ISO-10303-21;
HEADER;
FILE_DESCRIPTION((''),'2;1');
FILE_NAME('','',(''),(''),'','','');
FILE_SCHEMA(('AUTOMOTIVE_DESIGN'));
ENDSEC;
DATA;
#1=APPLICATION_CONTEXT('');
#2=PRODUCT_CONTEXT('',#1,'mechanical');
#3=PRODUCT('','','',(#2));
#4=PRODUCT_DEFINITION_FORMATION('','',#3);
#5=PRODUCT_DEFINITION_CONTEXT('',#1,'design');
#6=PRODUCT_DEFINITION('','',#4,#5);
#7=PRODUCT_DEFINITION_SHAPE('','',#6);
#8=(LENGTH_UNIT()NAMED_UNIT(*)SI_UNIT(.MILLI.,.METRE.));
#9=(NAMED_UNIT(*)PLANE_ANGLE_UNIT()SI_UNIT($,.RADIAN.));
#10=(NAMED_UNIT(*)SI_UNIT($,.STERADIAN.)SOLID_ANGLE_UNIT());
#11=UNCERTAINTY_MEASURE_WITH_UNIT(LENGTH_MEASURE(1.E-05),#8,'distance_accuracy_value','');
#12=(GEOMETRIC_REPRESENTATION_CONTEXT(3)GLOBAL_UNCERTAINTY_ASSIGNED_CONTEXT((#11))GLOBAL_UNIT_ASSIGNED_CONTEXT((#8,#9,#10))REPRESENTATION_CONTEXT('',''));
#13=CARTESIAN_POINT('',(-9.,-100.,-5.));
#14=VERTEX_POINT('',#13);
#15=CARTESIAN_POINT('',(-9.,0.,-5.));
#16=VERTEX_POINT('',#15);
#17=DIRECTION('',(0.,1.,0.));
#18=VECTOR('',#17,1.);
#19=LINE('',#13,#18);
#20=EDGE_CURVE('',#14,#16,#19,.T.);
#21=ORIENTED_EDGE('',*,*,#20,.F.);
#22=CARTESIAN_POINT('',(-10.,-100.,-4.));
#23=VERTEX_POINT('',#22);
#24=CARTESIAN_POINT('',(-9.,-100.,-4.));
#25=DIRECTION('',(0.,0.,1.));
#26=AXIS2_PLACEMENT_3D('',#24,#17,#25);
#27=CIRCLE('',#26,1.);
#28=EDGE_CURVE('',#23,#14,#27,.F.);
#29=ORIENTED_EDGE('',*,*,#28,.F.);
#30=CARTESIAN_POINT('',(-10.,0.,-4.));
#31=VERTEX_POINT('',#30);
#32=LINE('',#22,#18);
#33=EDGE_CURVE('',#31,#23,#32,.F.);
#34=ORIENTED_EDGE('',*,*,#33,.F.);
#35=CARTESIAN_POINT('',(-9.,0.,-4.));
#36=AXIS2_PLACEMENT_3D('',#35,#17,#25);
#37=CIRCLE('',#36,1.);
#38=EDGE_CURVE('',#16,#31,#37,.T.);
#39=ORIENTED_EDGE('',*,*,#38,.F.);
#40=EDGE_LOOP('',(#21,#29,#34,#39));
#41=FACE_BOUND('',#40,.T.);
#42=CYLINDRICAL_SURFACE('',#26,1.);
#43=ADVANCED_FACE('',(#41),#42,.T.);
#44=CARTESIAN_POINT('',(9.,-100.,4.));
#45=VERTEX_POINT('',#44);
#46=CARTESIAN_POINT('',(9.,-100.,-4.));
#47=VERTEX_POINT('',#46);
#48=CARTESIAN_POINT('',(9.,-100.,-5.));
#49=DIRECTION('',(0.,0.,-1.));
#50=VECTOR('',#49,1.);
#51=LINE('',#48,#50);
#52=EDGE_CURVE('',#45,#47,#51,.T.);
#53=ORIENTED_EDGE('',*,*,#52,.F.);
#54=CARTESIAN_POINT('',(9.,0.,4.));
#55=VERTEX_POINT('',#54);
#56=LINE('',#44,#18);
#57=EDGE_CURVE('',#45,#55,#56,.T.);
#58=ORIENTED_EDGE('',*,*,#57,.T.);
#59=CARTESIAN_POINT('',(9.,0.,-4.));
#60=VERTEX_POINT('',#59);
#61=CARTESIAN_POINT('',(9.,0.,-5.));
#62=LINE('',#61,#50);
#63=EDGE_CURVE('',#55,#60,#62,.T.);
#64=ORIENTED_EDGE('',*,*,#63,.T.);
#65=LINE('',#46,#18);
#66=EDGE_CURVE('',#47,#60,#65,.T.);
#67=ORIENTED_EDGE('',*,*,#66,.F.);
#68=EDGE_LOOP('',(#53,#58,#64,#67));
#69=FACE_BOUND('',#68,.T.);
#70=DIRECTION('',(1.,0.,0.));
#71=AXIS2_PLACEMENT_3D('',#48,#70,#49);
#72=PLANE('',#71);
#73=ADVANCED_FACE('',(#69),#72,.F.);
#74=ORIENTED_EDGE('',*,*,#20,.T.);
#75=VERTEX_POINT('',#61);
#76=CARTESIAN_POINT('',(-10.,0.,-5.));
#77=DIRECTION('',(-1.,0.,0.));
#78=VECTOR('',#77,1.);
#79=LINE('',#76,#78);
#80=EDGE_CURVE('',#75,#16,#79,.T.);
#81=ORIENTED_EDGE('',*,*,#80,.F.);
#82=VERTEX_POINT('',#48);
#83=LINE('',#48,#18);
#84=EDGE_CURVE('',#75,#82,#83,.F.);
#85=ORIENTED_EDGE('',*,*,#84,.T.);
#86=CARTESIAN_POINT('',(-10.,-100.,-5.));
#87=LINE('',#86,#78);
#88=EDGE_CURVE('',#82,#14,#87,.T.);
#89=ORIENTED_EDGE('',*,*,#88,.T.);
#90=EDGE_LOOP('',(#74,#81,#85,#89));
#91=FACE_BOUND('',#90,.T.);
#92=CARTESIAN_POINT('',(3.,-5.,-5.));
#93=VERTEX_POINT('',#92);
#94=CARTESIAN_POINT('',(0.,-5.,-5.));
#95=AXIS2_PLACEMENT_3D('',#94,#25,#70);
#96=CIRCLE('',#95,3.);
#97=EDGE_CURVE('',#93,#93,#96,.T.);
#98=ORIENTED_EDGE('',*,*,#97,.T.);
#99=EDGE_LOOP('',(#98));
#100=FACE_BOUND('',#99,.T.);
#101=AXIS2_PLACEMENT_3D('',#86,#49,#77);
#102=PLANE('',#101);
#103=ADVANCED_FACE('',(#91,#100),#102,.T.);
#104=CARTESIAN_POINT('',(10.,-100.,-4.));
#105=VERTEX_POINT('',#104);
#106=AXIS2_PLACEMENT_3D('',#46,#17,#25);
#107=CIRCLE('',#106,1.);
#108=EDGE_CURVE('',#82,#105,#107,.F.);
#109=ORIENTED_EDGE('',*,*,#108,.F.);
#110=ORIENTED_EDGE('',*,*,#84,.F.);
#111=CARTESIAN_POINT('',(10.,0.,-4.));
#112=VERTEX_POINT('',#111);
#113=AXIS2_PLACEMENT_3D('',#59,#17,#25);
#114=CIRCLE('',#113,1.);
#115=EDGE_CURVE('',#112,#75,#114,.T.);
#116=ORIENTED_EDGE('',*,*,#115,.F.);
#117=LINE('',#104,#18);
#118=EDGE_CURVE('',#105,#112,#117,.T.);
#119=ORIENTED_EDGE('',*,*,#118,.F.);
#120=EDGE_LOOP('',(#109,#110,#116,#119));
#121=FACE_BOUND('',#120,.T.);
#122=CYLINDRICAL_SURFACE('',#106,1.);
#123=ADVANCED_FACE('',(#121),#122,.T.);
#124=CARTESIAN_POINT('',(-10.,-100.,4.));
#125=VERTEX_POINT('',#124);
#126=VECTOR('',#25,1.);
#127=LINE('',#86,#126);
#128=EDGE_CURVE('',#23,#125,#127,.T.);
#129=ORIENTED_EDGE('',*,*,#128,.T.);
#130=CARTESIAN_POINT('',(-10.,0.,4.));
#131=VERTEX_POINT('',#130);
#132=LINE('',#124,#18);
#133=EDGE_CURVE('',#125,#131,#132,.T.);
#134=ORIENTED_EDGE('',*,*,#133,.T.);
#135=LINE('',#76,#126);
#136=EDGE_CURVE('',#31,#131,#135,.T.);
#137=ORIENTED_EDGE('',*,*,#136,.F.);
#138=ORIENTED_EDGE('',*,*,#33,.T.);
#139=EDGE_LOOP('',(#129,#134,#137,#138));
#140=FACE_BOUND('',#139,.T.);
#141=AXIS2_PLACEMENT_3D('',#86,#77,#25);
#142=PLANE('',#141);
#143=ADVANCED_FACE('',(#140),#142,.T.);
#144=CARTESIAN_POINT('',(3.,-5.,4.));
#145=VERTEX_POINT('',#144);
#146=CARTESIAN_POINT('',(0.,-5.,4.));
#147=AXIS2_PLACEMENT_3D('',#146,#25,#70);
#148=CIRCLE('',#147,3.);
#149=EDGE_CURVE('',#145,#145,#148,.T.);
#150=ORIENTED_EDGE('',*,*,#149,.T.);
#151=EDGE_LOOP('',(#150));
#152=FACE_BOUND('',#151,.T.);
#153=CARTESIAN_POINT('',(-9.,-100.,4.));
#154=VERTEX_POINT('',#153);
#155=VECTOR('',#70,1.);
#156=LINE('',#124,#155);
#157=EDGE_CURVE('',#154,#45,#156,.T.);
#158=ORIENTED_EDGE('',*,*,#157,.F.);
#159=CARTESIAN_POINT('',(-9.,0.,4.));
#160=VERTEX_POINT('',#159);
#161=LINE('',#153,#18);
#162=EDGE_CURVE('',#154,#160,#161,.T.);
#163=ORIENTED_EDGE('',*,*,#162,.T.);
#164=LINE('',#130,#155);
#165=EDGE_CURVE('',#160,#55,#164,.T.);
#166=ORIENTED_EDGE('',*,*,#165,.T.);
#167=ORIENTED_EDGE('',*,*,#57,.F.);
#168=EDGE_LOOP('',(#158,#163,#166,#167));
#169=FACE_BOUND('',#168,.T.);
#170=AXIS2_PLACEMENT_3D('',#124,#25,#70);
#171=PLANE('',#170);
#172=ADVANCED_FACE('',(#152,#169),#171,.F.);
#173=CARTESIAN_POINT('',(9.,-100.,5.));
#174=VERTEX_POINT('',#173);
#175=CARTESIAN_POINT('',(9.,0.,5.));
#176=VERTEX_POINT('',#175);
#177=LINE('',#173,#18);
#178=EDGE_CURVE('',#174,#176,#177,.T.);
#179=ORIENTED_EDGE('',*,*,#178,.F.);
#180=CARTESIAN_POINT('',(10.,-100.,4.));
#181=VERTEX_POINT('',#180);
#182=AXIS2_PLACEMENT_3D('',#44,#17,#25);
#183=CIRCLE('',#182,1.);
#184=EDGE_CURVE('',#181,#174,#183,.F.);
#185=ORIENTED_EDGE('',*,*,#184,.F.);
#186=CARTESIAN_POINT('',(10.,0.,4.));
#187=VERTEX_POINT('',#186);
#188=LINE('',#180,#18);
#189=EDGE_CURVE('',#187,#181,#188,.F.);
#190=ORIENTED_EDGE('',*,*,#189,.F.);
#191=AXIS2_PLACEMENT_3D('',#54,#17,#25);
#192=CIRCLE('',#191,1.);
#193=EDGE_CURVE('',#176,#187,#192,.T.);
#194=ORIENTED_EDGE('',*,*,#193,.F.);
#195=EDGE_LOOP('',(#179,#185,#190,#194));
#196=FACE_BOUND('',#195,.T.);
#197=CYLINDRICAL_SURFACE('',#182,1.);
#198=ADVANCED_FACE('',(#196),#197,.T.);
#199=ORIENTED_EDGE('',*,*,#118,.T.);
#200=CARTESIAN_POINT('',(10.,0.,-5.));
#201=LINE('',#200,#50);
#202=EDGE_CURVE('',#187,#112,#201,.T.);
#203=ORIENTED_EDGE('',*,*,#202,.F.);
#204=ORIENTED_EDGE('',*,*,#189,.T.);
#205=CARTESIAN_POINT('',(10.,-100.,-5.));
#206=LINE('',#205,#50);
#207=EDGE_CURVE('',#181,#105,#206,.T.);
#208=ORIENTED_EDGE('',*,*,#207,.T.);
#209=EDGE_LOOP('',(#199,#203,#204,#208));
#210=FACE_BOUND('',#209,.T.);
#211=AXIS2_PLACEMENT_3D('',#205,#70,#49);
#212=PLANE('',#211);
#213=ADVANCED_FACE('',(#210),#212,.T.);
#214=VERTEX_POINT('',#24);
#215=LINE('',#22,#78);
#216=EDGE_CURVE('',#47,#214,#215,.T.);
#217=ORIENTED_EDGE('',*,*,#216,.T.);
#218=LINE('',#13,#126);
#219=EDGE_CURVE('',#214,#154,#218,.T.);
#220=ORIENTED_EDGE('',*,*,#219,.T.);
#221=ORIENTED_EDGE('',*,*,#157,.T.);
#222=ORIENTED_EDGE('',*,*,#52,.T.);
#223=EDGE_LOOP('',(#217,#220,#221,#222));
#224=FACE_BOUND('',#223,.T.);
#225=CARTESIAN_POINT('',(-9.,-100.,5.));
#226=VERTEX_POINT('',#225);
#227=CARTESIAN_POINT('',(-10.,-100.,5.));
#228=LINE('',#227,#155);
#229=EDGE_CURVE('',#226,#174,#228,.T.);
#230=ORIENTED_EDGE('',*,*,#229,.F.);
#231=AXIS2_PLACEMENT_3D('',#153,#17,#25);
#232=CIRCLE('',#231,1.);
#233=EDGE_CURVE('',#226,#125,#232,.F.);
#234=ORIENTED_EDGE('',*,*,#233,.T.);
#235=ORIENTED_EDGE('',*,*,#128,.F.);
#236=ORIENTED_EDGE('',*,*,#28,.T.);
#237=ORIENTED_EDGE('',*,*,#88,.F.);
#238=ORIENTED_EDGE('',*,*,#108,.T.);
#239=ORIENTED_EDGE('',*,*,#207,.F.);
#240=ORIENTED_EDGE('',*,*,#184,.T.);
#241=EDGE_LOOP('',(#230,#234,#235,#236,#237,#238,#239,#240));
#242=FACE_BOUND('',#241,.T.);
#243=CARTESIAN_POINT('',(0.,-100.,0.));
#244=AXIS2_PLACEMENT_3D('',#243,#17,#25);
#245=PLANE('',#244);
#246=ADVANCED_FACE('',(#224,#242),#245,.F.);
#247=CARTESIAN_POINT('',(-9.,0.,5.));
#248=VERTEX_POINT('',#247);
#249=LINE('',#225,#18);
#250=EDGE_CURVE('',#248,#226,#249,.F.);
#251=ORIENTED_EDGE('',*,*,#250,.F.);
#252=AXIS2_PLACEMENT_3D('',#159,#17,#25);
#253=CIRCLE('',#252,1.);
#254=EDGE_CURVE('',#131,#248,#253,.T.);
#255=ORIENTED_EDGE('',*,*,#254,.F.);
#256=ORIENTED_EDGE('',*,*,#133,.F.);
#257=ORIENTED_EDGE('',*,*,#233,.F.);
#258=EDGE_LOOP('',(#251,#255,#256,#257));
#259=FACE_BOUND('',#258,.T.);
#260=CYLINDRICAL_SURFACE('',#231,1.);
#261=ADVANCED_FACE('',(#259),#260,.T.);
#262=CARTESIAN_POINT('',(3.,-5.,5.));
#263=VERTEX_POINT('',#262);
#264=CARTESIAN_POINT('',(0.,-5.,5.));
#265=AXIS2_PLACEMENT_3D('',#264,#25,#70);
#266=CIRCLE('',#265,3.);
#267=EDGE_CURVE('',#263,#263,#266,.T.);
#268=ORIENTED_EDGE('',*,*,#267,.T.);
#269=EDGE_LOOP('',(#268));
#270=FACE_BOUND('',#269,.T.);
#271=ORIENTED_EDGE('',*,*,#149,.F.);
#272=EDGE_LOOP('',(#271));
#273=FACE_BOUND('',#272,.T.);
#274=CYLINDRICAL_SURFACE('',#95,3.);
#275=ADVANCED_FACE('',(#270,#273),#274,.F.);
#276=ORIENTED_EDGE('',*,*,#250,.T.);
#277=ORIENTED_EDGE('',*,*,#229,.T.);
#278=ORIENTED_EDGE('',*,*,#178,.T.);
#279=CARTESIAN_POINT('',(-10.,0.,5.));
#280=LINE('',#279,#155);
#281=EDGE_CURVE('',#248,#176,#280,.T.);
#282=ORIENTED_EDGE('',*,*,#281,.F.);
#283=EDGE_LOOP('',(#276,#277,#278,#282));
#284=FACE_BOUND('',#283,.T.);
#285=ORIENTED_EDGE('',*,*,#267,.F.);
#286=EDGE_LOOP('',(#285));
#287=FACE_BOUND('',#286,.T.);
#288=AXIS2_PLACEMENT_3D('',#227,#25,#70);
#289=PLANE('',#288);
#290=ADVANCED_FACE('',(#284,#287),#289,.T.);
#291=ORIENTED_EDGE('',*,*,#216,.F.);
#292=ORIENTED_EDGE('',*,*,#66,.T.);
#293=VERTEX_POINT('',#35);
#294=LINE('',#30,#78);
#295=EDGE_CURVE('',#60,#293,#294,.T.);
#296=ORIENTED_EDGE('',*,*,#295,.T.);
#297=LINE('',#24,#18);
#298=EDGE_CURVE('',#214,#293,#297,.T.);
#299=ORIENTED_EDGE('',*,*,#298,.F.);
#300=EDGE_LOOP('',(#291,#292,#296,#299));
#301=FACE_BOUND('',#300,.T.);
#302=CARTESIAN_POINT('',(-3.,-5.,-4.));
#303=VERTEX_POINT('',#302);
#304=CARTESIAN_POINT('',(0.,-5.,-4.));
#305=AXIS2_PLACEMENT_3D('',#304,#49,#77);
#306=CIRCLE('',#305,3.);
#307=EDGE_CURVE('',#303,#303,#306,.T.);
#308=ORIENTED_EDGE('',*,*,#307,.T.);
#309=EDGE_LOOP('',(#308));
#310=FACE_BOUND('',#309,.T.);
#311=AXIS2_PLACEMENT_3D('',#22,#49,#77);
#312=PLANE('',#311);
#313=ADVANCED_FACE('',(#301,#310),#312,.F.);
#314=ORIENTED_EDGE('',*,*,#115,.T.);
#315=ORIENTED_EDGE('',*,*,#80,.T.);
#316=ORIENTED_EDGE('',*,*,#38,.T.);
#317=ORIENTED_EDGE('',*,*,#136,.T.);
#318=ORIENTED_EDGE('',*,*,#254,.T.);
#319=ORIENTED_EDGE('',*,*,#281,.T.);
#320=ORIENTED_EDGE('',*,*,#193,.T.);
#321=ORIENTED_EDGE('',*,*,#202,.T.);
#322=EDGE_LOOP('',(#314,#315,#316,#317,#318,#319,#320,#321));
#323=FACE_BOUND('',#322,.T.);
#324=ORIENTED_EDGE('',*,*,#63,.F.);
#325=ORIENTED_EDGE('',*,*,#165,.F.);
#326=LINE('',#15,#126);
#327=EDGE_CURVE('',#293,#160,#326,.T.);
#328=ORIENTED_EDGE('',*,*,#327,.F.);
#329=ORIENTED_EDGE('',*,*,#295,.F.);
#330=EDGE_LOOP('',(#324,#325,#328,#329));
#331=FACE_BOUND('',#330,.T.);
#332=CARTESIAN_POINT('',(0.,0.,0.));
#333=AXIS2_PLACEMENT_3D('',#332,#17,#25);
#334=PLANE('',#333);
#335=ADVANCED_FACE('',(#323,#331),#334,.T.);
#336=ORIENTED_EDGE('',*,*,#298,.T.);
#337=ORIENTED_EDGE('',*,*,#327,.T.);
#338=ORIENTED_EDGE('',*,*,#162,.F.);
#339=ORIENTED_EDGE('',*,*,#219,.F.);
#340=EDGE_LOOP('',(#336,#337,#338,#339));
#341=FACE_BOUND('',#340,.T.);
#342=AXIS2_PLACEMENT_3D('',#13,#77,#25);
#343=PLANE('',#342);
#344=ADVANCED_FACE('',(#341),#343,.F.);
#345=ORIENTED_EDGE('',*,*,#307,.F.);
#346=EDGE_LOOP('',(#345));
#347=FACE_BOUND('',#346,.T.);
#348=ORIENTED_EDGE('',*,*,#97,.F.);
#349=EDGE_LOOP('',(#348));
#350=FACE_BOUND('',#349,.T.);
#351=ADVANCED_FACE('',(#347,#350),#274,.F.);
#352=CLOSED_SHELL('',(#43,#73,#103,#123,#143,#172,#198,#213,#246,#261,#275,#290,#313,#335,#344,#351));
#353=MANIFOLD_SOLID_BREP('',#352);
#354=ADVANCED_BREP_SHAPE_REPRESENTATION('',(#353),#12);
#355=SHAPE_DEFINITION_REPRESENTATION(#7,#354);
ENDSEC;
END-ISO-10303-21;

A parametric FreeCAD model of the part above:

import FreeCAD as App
import Part
import Sketcher

V = App.Vector
Q = App.Units.Quantity


def edges_at(feature, points):
    """Names of the edges that pass closest to the given points."""
    edges = feature.Shape.Edges
    near = lambda p: min(range(len(edges)), key=lambda i: edges[i].distToShape(Part.Vertex(*p))[0])
    return sorted({f"Edge{near(p) + 1}" for p in points})

doc = App.newDocument("Part")
body = doc.addObject("PartDesign::Body", "Body")

# Sketch on XZ plane
sketch1 = body.newObject("Sketcher::SketchObject", "Sketch")
sketch1.AttachmentSupport = (doc.getObject("XZ_Plane"), [""])
sketch1.MapMode = "FlatFace"
sketch1.addGeometry([
    Part.LineSegment(V(-10, -5, 0), V(-10, 5, 0)),  # 0
    Part.LineSegment(V(-10, 5, 0), V(10, 5, 0)),  # 1
    Part.LineSegment(V(10, 5, 0), V(10, -5, 0)),  # 2
    Part.LineSegment(V(10, -5, 0), V(-10, -5, 0)),  # 3
    Part.LineSegment(V(9, 4, 0), V(-9, 4, 0)),  # 4
    Part.LineSegment(V(-9, 4, 0), V(-9, -4, 0)),  # 5
    Part.LineSegment(V(-9, -4, 0), V(9, -4, 0)),  # 6
    Part.LineSegment(V(9, -4, 0), V(9, 4, 0)),  # 7
], False)
sketch1.addConstraint([
    Sketcher.Constraint("Coincident", 0, 2, 1, 1),
    Sketcher.Constraint("Coincident", 1, 2, 2, 1),
    Sketcher.Constraint("Coincident", 2, 2, 3, 1),
    Sketcher.Constraint("Coincident", 3, 2, 0, 1),
    Sketcher.Constraint("Coincident", 4, 2, 5, 1),
    Sketcher.Constraint("Coincident", 5, 2, 6, 1),
    Sketcher.Constraint("Coincident", 6, 2, 7, 1),
    Sketcher.Constraint("Coincident", 7, 2, 4, 1),
    Sketcher.Constraint("Vertical", 0),
    Sketcher.Constraint("Horizontal", 1),
    Sketcher.Constraint("Vertical", 2),
    Sketcher.Constraint("Horizontal", 3),
    Sketcher.Constraint("Horizontal", 4),
    Sketcher.Constraint("Vertical", 5),
    Sketcher.Constraint("Horizontal", 6),
    Sketcher.Constraint("Vertical", 7),
    Sketcher.Constraint("Symmetric", 0, 2, 2, 2, -1, 1),
    Sketcher.Constraint("Symmetric", 4, 2, 6, 2, -1, 1),
    Sketcher.Constraint("DistanceX", 1, 1, 1, 2, Q("20 mm")),
    Sketcher.Constraint("DistanceX", 4, 2, 4, 1, Q("18 mm")),
    Sketcher.Constraint("DistanceY", 0, 1, 0, 2, Q("10 mm")),
    Sketcher.Constraint("DistanceY", 5, 2, 5, 1, Q("8 mm")),
])
pad1 = body.newObject("PartDesign::Pad", "Pad")
pad1.Profile = sketch1
pad1.Length = 100

# Sketch on XY plane
sketch2 = body.newObject("Sketcher::SketchObject", "Sketch001")
sketch2.AttachmentSupport = (doc.getObject("XY_Plane"), [""])
sketch2.MapMode = "FlatFace"
sketch2.AttachmentOffset = App.Placement(V(0, 0, 5), App.Rotation())
sketch2.addGeometry(Part.Circle(V(0, -5, 0), V(0, 0, 1), 3), False)
sketch2.addConstraint([
    Sketcher.Constraint("PointOnObject", 0, 3, -2),
    Sketcher.Constraint("Diameter", 0, Q("6 mm")),
    Sketcher.Constraint("DistanceY", 0, 3, -1, 1, Q("5 mm")),
])
pocket1 = body.newObject("PartDesign::Pocket", "Pocket")
pocket1.Profile = sketch2
pocket1.Type = "ThroughAll"
doc.recompute()

fillet = body.newObject("PartDesign::Fillet", "Fillet")
fillet.Base = (pocket1, edges_at(pocket1, [
    (10, -50, 5),
    (-10, -50, 5),
    (-10, -50, -5),
    (10, -50, -5),
]))
fillet.Radius = 1

doc.recompute()
